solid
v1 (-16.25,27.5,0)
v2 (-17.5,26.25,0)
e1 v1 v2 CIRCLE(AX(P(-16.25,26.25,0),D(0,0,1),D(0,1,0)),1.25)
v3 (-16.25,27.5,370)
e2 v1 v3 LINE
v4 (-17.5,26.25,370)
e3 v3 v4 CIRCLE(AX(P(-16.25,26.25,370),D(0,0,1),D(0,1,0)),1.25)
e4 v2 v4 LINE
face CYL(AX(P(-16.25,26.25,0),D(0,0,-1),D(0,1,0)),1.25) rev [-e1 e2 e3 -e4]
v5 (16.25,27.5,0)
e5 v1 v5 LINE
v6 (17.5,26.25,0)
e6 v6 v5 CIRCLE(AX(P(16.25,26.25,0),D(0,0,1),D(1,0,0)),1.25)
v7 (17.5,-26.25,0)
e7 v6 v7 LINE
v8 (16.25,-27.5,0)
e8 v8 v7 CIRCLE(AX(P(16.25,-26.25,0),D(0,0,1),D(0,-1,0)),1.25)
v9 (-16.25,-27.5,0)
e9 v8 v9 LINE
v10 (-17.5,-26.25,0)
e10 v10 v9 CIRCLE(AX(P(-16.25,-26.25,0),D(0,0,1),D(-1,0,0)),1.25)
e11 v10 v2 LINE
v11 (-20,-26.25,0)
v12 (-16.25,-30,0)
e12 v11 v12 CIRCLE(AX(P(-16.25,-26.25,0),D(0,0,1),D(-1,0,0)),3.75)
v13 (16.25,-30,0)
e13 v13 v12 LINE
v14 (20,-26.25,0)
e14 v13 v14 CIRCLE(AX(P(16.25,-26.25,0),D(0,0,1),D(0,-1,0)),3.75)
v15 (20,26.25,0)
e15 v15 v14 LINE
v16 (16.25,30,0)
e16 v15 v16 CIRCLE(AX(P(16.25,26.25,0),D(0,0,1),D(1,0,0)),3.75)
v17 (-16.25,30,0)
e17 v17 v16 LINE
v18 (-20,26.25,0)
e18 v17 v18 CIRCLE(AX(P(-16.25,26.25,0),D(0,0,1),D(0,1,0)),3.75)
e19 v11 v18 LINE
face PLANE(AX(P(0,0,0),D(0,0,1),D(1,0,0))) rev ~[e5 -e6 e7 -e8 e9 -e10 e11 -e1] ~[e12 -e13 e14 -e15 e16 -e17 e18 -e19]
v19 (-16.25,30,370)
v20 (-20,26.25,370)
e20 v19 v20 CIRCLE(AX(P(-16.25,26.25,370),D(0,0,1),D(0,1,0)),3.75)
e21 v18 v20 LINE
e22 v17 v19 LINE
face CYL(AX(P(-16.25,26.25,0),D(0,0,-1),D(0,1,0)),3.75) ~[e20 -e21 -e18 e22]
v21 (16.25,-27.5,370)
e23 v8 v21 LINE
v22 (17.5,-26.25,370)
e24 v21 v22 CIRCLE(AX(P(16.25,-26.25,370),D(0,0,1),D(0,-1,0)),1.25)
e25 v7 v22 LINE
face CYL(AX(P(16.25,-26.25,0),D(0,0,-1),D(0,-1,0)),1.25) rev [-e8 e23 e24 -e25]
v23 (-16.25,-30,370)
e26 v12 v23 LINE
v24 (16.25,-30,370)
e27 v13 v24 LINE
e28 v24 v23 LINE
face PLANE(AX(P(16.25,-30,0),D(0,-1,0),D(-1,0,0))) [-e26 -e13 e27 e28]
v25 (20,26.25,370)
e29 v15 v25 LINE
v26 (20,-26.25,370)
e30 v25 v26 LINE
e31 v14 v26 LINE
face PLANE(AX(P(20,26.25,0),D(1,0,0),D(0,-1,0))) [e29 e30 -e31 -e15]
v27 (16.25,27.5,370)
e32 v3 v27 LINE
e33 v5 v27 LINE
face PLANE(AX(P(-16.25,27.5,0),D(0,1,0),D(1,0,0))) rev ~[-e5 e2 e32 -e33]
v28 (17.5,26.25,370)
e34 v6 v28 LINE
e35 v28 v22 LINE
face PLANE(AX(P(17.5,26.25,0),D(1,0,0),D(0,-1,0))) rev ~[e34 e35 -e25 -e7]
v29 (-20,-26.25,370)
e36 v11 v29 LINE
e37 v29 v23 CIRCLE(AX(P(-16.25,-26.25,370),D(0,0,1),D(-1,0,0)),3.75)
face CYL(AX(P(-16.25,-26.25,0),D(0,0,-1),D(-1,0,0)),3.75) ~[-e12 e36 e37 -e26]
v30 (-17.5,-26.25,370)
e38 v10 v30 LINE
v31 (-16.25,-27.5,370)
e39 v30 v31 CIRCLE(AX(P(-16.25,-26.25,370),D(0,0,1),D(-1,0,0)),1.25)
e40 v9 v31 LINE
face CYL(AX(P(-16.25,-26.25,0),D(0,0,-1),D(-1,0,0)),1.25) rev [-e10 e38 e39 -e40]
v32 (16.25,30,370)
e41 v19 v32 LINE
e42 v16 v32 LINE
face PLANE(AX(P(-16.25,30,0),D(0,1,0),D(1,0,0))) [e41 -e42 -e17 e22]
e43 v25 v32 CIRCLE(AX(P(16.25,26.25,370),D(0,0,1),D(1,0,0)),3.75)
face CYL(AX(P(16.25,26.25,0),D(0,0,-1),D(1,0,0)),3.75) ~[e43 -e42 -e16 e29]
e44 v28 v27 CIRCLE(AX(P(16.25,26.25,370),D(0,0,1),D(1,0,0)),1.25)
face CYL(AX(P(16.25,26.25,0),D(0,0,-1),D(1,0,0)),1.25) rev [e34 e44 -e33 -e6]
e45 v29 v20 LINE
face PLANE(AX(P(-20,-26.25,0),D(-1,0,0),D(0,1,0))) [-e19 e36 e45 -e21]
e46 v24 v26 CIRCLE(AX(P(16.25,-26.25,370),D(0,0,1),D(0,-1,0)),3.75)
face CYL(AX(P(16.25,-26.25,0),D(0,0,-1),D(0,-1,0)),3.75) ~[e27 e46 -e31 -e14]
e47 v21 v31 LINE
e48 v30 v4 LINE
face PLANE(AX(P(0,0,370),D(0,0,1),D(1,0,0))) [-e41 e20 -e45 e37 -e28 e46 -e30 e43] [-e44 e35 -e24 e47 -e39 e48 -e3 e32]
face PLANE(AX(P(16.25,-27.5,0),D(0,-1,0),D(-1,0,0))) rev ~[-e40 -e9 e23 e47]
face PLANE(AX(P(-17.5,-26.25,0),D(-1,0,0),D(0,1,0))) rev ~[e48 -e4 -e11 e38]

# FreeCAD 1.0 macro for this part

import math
import FreeCAD as App
import Part
import Sketcher
from FreeCAD import Vector

doc = App.newDocument("Part")
body = doc.addObject("PartDesign::Body", "Body")

sketch1 = doc.addObject("Sketcher::SketchObject", "Sketch")
body.addObject(sketch1)
sketch1.AttachmentSupport = (doc.XY_Plane, [""])
sketch1.MapMode = "FlatFace"
sketch1.addGeometry(Part.LineSegment(Vector(-20, 26.2, 0), Vector(-20, -26.2, 0)), False)
sketch1.addGeometry(Part.ArcOfCircle(Part.Circle(Vector(-16.2, -26.2, 0), Vector(0, 0, 1), 3.8), math.radians(180), math.radians(270)), False)
sketch1.addGeometry(Part.LineSegment(Vector(-16.2, -30, 0), Vector(16.2, -30, 0)), False)
sketch1.addGeometry(Part.ArcOfCircle(Part.Circle(Vector(16.2, -26.2, 0), Vector(0, 0, 1), 3.8), math.radians(-90), math.radians(0)), False)
sketch1.addGeometry(Part.LineSegment(Vector(20, -26.2, 0), Vector(20, 26.2, 0)), False)
sketch1.addGeometry(Part.ArcOfCircle(Part.Circle(Vector(16.2, 26.2, 0), Vector(0, 0, 1), 3.8), math.radians(0), math.radians(90)), False)
sketch1.addGeometry(Part.LineSegment(Vector(16.2, 30, 0), Vector(-16.2, 30, 0)), False)
sketch1.addGeometry(Part.ArcOfCircle(Part.Circle(Vector(-16.2, 26.2, 0), Vector(0, 0, 1), 3.8), math.radians(90), math.radians(180)), False)
sketch1.addGeometry(Part.ArcOfCircle(Part.Circle(Vector(-16.2, 26.2, 0), Vector(0, 0, 1), 1.2), math.radians(90), math.radians(180)), False)
sketch1.addGeometry(Part.LineSegment(Vector(-16.2, 27.5, 0), Vector(16.2, 27.5, 0)), False)
sketch1.addGeometry(Part.ArcOfCircle(Part.Circle(Vector(16.2, 26.2, 0), Vector(0, 0, 1), 1.2), math.radians(0), math.radians(90)), False)
sketch1.addGeometry(Part.LineSegment(Vector(17.5, 26.2, 0), Vector(17.5, -26.2, 0)), False)
sketch1.addGeometry(Part.ArcOfCircle(Part.Circle(Vector(16.2, -26.2, 0), Vector(0, 0, 1), 1.2), math.radians(-90), math.radians(0)), False)
sketch1.addGeometry(Part.LineSegment(Vector(16.2, -27.5, 0), Vector(-16.2, -27.5, 0)), False)
sketch1.addGeometry(Part.ArcOfCircle(Part.Circle(Vector(-16.2, -26.2, 0), Vector(0, 0, 1), 1.2), math.radians(180), math.radians(270)), False)
sketch1.addGeometry(Part.LineSegment(Vector(-17.5, -26.2, 0), Vector(-17.5, 26.2, 0)), False)
sketch1.addConstraint(Sketcher.Constraint("Tangent", 0, 2, 1, 1))
sketch1.addConstraint(Sketcher.Constraint("Tangent", 1, 2, 2, 1))
sketch1.addConstraint(Sketcher.Constraint("Tangent", 2, 2, 3, 1))
sketch1.addConstraint(Sketcher.Constraint("Tangent", 3, 2, 4, 1))
sketch1.addConstraint(Sketcher.Constraint("Tangent", 4, 2, 5, 1))
sketch1.addConstraint(Sketcher.Constraint("Tangent", 5, 2, 6, 1))
sketch1.addConstraint(Sketcher.Constraint("Tangent", 6, 2, 7, 1))
sketch1.addConstraint(Sketcher.Constraint("Tangent", 7, 2, 0, 1))
sketch1.addConstraint(Sketcher.Constraint("Tangent", 8, 1, 9, 1))
sketch1.addConstraint(Sketcher.Constraint("Tangent", 9, 2, 10, 2))
sketch1.addConstraint(Sketcher.Constraint("Tangent", 10, 1, 11, 1))
sketch1.addConstraint(Sketcher.Constraint("Tangent", 11, 2, 12, 2))
sketch1.addConstraint(Sketcher.Constraint("Tangent", 12, 1, 13, 1))
sketch1.addConstraint(Sketcher.Constraint("Tangent", 13, 2, 14, 2))
sketch1.addConstraint(Sketcher.Constraint("Tangent", 14, 1, 15, 1))
sketch1.addConstraint(Sketcher.Constraint("Tangent", 15, 2, 8, 2))
sketch1.addConstraint(Sketcher.Constraint("Vertical", 0))
sketch1.addConstraint(Sketcher.Constraint("Horizontal", 2))
sketch1.addConstraint(Sketcher.Constraint("Vertical", 4))
sketch1.addConstraint(Sketcher.Constraint("Horizontal", 6))
sketch1.addConstraint(Sketcher.Constraint("Horizontal", 9))
sketch1.addConstraint(Sketcher.Constraint("Vertical", 11))
sketch1.addConstraint(Sketcher.Constraint("Horizontal", 13))
sketch1.addConstraint(Sketcher.Constraint("Vertical", 15))
sketch1.addConstraint(Sketcher.Constraint("Coincident", 8, 3, 7, 3))
sketch1.addConstraint(Sketcher.Constraint("Coincident", 10, 3, 5, 3))
sketch1.addConstraint(Sketcher.Constraint("Coincident", 12, 3, 3, 3))
sketch1.addConstraint(Sketcher.Constraint("Equal", 1, 3))
sketch1.addConstraint(Sketcher.Constraint("Equal", 3, 5))
sketch1.addConstraint(Sketcher.Constraint("Equal", 5, 7))
sketch1.addConstraint(Sketcher.Constraint("Equal", 12, 14))
sketch1.addConstraint(Sketcher.Constraint("Symmetric", 1, 3, 5, 3, -1, 1))
sketch1.addConstraint(Sketcher.Constraint("Radius", 1, 3.75))
sketch1.addConstraint(Sketcher.Constraint("Radius", 8, 1.25))
sketch1.addConstraint(Sketcher.Constraint("DistanceX", 0, 2, -1, 1, 20.0))
sketch1.addConstraint(Sketcher.Constraint("DistanceY", 1, 2, -1, 1, 30.0))
pad1 = doc.addObject("PartDesign::Pad", "Pad")
body.addObject(pad1)
pad1.Profile = sketch1
pad1.Length = 370

doc.recompute()
